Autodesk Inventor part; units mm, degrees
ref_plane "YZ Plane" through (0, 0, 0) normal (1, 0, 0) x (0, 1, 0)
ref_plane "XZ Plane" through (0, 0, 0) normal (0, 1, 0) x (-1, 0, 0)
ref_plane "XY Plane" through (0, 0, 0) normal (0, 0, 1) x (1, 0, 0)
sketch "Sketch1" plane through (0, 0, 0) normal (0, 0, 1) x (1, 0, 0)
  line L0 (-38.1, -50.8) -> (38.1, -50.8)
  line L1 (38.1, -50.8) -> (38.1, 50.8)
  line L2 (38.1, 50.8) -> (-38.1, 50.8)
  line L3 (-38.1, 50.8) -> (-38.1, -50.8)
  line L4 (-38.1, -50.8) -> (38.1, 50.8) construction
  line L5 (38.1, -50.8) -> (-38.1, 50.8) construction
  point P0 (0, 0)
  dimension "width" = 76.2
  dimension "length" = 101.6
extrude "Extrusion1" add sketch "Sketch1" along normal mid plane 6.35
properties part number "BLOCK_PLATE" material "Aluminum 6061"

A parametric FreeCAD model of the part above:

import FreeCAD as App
import Part
import Sketcher

V = App.Vector
Q = App.Units.Quantity

doc = App.newDocument("Part")
params = doc.addObject("Spreadsheet::Sheet", "Params")
for row, (alias, value) in enumerate([
    ("sketch1_width", "3 in"),
    ("sketch1_height", "4 in"),
    ("pad1_length", "0.25 in"),
], start=1):
    params.set(f"A{row}", alias)
    params.set(f"B{row}", "=" + value)
    params.setAlias(f"B{row}", alias)

body = doc.addObject("PartDesign::Body", "Body")

sketch1 = doc.addObject("Sketcher::SketchObject", "Sketch")
body.addObject(sketch1)
sketch1.AttachmentSupport = (doc.XY_Plane, [""])
sketch1.MapMode = "FlatFace"
sketch1.addGeometry(Part.LineSegment(V(-38, 51, 0), V(-38, -51, 0)), False)
sketch1.addGeometry(Part.LineSegment(V(-38, -51, 0), V(38, -51, 0)), False)
sketch1.addGeometry(Part.LineSegment(V(38, -51, 0), V(38, 51, 0)), False)
sketch1.addGeometry(Part.LineSegment(V(38, 51, 0), V(-38, 51, 0)), False)
sketch1.addConstraint(Sketcher.Constraint("Coincident", 0, 2, 1, 1))
sketch1.addConstraint(Sketcher.Constraint("Coincident", 1, 2, 2, 1))
sketch1.addConstraint(Sketcher.Constraint("Coincident", 2, 2, 3, 1))
sketch1.addConstraint(Sketcher.Constraint("Coincident", 3, 2, 0, 1))
sketch1.addConstraint(Sketcher.Constraint("Vertical", 0))
sketch1.addConstraint(Sketcher.Constraint("Horizontal", 1))
sketch1.addConstraint(Sketcher.Constraint("Vertical", 2))
sketch1.addConstraint(Sketcher.Constraint("Horizontal", 3))
sketch1.addConstraint(Sketcher.Constraint("Symmetric", 0, 2, 2, 2, -1, 1))
sketch1.addConstraint(Sketcher.Constraint("DistanceX", 1, 1, 1, 2, Q("3 in")))
sketch1.addConstraint(Sketcher.Constraint("DistanceY", 0, 2, 0, 1, Q("4 in")))
sketch1.setExpression("Constraints[9]", "Params.sketch1_width")
sketch1.setExpression("Constraints[10]", "Params.sketch1_height")
pad1 = doc.addObject("PartDesign::Pad", "Pad")
body.addObject(pad1)
pad1.Profile = sketch1
pad1.setExpression("Length", "Params.pad1_length")
pad1.Midplane = True

doc.recompute()
